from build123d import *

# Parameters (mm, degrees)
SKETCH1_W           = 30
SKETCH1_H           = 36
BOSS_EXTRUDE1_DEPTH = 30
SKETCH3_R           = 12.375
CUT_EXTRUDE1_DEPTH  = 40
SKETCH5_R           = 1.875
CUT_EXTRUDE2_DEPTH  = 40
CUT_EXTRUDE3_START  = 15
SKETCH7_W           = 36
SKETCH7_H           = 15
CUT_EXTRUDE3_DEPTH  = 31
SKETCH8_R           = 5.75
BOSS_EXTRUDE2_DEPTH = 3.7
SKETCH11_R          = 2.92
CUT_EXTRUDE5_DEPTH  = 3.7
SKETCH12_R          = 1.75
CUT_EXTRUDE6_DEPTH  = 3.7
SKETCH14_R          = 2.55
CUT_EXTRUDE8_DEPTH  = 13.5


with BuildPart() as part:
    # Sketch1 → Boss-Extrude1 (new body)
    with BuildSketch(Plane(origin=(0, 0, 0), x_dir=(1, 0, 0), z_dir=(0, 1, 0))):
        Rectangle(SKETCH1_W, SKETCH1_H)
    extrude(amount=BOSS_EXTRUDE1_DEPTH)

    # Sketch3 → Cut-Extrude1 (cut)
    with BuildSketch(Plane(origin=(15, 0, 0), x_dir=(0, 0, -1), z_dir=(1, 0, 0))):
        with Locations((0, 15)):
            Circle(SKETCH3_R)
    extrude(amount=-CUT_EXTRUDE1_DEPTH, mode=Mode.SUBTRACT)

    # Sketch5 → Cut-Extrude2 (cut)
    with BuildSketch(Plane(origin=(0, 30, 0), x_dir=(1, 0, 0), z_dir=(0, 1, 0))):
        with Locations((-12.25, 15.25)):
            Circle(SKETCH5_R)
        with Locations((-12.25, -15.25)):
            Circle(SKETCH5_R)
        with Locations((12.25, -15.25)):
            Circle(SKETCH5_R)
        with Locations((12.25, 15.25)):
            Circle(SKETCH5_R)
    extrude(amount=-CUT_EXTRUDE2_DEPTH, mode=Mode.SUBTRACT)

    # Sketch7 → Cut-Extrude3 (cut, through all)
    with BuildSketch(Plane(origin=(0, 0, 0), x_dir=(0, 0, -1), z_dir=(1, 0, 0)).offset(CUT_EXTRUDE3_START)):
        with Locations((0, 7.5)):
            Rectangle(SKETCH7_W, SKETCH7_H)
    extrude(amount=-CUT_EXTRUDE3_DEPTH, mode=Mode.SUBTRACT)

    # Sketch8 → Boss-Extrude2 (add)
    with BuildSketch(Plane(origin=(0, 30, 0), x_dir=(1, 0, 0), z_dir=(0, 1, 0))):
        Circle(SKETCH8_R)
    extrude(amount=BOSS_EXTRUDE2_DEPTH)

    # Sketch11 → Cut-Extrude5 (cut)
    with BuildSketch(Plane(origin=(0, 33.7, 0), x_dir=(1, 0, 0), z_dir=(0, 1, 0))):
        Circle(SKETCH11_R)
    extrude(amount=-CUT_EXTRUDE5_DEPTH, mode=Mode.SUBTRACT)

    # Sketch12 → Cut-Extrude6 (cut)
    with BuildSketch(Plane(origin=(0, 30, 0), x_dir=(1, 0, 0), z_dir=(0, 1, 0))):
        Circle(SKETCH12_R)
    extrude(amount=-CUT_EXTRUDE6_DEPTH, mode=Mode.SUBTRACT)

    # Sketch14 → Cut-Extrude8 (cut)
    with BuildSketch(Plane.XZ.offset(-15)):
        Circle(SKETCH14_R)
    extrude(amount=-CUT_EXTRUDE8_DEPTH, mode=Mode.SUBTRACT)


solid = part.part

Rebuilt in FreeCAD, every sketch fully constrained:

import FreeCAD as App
import Part
import Sketcher
from FreeCAD import Vector

doc = App.newDocument("Part")
body = doc.addObject("PartDesign::Body", "Body")

# Sketch on XZ plane
sketch1 = doc.addObject("Sketcher::SketchObject", "Sketch")
body.addObject(sketch1)
sketch1.AttachmentSupport = (doc.XZ_Plane, [""])
sketch1.MapMode = "FlatFace"
sketch1.addGeometry([
    Part.LineSegment(Vector(-15, -18, 0), Vector(-15, 18, 0)),
    Part.LineSegment(Vector(-15, 18, 0), Vector(15, 18, 0)),
    Part.LineSegment(Vector(15, 18, 0), Vector(15, -18, 0)),
    Part.LineSegment(Vector(15, -18, 0), Vector(-15, -18, 0)),
], False)
sketch1.addConstraint([
    Sketcher.Constraint("Coincident", 0, 2, 1, 1),
    Sketcher.Constraint("Coincident", 1, 2, 2, 1),
    Sketcher.Constraint("Coincident", 2, 2, 3, 1),
    Sketcher.Constraint("Coincident", 3, 2, 0, 1),
    Sketcher.Constraint("Vertical", 0),
    Sketcher.Constraint("Horizontal", 1),
    Sketcher.Constraint("Vertical", 2),
    Sketcher.Constraint("Horizontal", 3),
    Sketcher.Constraint("Symmetric", 0, 2, 2, 2, -1, 1),
    Sketcher.Constraint("DistanceX", 1, 1, 1, 2, 30.0),
    Sketcher.Constraint("DistanceY", 0, 1, 0, 2, 36.0),
])
pad1 = doc.addObject("PartDesign::Pad", "Pad")
body.addObject(pad1)
pad1.Profile = sketch1
pad1.Length = 30
pad1.Reversed = True

# Sketch on YZ plane
sketch2 = doc.addObject("Sketcher::SketchObject", "Sketch001")
body.addObject(sketch2)
sketch2.AttachmentSupport = (doc.YZ_Plane, [""])
sketch2.MapMode = "FlatFace"
sketch2.AttachmentOffset = App.Placement(Vector(0, 0, 15), App.Rotation())
sketch2.addGeometry(Part.Circle(Vector(15, 0, 0), Vector(0, 0, 1), 12), False)
sketch2.addConstraint([
    Sketcher.Constraint("PointOnObject", 0, 3, -1),
    Sketcher.Constraint("Diameter", 0, 24.75),
    Sketcher.Constraint("DistanceX", -1, 1, 0, 3, 15.0),
])
pocket1 = doc.addObject("PartDesign::Pocket", "Pocket")
body.addObject(pocket1)
pocket1.Profile = sketch2
pocket1.Length = 40

# Sketch on XZ plane
sketch3 = doc.addObject("Sketcher::SketchObject", "Sketch002")
body.addObject(sketch3)
sketch3.AttachmentSupport = (doc.XZ_Plane, [""])
sketch3.MapMode = "FlatFace"
sketch3.AttachmentOffset = App.Placement(Vector(0, 0, -30), App.Rotation())
sketch3.addGeometry([
    Part.Circle(Vector(-12.2, -15.2, 0), Vector(0, 0, 1), 1.9),
    Part.Circle(Vector(-12.2, 15.2, 0), Vector(0, 0, 1), 1.9),
    Part.Circle(Vector(12.2, 15.2, 0), Vector(0, 0, 1), 1.9),
    Part.Circle(Vector(12.2, -15.2, 0), Vector(0, 0, 1), 1.9),
], False)
sketch3.addConstraint([
    Sketcher.Constraint("Equal", 0, 1),
    Sketcher.Constraint("Equal", 1, 2),
    Sketcher.Constraint("Equal", 2, 3),
    Sketcher.Constraint("Symmetric", 0, 3, 2, 3, -1, 1),
    Sketcher.Constraint("Symmetric", 1, 3, 3, 3, -1, 1),
    Sketcher.Constraint("Symmetric", 1, 3, 2, 3, -2),
    Sketcher.Constraint("Diameter", 0, 3.75),
    Sketcher.Constraint("DistanceY", 0, 3, 1, 3, 30.5),
    Sketcher.Constraint("DistanceX", 1, 3, 2, 3, 24.5),
])
pocket2 = doc.addObject("PartDesign::Pocket", "Pocket001")
body.addObject(pocket2)
pocket2.Profile = sketch3
pocket2.Length = 40
pocket2.Reversed = True

# Sketch on YZ plane
sketch4 = doc.addObject("Sketcher::SketchObject", "Sketch003")
body.addObject(sketch4)
sketch4.AttachmentSupport = (doc.YZ_Plane, [""])
sketch4.MapMode = "FlatFace"
sketch4.AttachmentOffset = App.Placement(Vector(0, 0, 15), App.Rotation())
sketch4.addGeometry([
    Part.LineSegment(Vector(15, 18, 0), Vector(0, 18, 0)),
    Part.LineSegment(Vector(0, 18, 0), Vector(0, -18, 0)),
    Part.LineSegment(Vector(0, -18, 0), Vector(15, -18, 0)),
    Part.LineSegment(Vector(15, -18, 0), Vector(15, 18, 0)),
], False)
sketch4.addConstraint([
    Sketcher.Constraint("Coincident", 0, 2, 1, 1),
    Sketcher.Constraint("Coincident", 1, 2, 2, 1),
    Sketcher.Constraint("Coincident", 2, 2, 3, 1),
    Sketcher.Constraint("Coincident", 3, 2, 0, 1),
    Sketcher.Constraint("Horizontal", 0),
    Sketcher.Constraint("Vertical", 1),
    Sketcher.Constraint("Horizontal", 2),
    Sketcher.Constraint("Vertical", 3),
    Sketcher.Constraint("Symmetric", 0, 2, 1, 2, -1, 1),
    Sketcher.Constraint("DistanceX", 0, 2, 0, 1, 15.0),
    Sketcher.Constraint("DistanceY", 1, 2, 1, 1, 36.0),
])
pocket3 = doc.addObject("PartDesign::Pocket", "Pocket002")
body.addObject(pocket3)
pocket3.Profile = sketch4
pocket3.Type = "ThroughAll"

# Sketch on XZ plane
sketch5 = doc.addObject("Sketcher::SketchObject", "Sketch004")
body.addObject(sketch5)
sketch5.AttachmentSupport = (doc.XZ_Plane, [""])
sketch5.MapMode = "FlatFace"
sketch5.AttachmentOffset = App.Placement(Vector(0, 0, -30), App.Rotation())
sketch5.addGeometry(Part.Circle(Vector(0, 0, 0), Vector(0, 0, 1), 6), False)
sketch5.addConstraint([
    Sketcher.Constraint("Coincident", 0, 3, -1, 1),
    Sketcher.Constraint("Diameter", 0, 11.5),
])
pad2 = doc.addObject("PartDesign::Pad", "Pad001")
body.addObject(pad2)
pad2.Profile = sketch5
pad2.Length = 3.7
pad2.Reversed = True

# Sketch on XZ plane
sketch6 = doc.addObject("Sketcher::SketchObject", "Sketch005")
body.addObject(sketch6)
sketch6.AttachmentSupport = (doc.XZ_Plane, [""])
sketch6.MapMode = "FlatFace"
sketch6.AttachmentOffset = App.Placement(Vector(0, 0, -33.7), App.Rotation())
sketch6.addGeometry(Part.Circle(Vector(0, 0, 0), Vector(0, 0, 1), 2.9), False)
sketch6.addConstraint([
    Sketcher.Constraint("Coincident", 0, 3, -1, 1),
    Sketcher.Constraint("Diameter", 0, 5.84),
])
pocket4 = doc.addObject("PartDesign::Pocket", "Pocket003")
body.addObject(pocket4)
pocket4.Profile = sketch6
pocket4.Length = 3.7
pocket4.Reversed = True

# Sketch on XZ plane
sketch7 = doc.addObject("Sketcher::SketchObject", "Sketch006")
body.addObject(sketch7)
sketch7.AttachmentSupport = (doc.XZ_Plane, [""])
sketch7.MapMode = "FlatFace"
sketch7.AttachmentOffset = App.Placement(Vector(0, 0, -30), App.Rotation())
sketch7.addGeometry(Part.Circle(Vector(0, 0, 0), Vector(0, 0, 1), 1.8), False)
sketch7.addConstraint([
    Sketcher.Constraint("Coincident", 0, 3, -1, 1),
    Sketcher.Constraint("Diameter", 0, 3.5),
])
pocket5 = doc.addObject("PartDesign::Pocket", "Pocket004")
body.addObject(pocket5)
pocket5.Profile = sketch7
pocket5.Length = 3.7
pocket5.Reversed = True

# Sketch on XZ plane
sketch8 = doc.addObject("Sketcher::SketchObject", "Sketch007")
body.addObject(sketch8)
sketch8.AttachmentSupport = (doc.XZ_Plane, [""])
sketch8.MapMode = "FlatFace"
sketch8.AttachmentOffset = App.Placement(Vector(0, 0, -15), App.Rotation())
sketch8.addGeometry(Part.Circle(Vector(0, 0, 0), Vector(0, 0, 1), 2.5), False)
sketch8.addConstraint([
    Sketcher.Constraint("Coincident", 0, 3, -1, 1),
    Sketcher.Constraint("Diameter", 0, 5.1),
])
pocket6 = doc.addObject("PartDesign::Pocket", "Pocket005")
body.addObject(pocket6)
pocket6.Profile = sketch8
pocket6.Length = 13.5

doc.recompute()
